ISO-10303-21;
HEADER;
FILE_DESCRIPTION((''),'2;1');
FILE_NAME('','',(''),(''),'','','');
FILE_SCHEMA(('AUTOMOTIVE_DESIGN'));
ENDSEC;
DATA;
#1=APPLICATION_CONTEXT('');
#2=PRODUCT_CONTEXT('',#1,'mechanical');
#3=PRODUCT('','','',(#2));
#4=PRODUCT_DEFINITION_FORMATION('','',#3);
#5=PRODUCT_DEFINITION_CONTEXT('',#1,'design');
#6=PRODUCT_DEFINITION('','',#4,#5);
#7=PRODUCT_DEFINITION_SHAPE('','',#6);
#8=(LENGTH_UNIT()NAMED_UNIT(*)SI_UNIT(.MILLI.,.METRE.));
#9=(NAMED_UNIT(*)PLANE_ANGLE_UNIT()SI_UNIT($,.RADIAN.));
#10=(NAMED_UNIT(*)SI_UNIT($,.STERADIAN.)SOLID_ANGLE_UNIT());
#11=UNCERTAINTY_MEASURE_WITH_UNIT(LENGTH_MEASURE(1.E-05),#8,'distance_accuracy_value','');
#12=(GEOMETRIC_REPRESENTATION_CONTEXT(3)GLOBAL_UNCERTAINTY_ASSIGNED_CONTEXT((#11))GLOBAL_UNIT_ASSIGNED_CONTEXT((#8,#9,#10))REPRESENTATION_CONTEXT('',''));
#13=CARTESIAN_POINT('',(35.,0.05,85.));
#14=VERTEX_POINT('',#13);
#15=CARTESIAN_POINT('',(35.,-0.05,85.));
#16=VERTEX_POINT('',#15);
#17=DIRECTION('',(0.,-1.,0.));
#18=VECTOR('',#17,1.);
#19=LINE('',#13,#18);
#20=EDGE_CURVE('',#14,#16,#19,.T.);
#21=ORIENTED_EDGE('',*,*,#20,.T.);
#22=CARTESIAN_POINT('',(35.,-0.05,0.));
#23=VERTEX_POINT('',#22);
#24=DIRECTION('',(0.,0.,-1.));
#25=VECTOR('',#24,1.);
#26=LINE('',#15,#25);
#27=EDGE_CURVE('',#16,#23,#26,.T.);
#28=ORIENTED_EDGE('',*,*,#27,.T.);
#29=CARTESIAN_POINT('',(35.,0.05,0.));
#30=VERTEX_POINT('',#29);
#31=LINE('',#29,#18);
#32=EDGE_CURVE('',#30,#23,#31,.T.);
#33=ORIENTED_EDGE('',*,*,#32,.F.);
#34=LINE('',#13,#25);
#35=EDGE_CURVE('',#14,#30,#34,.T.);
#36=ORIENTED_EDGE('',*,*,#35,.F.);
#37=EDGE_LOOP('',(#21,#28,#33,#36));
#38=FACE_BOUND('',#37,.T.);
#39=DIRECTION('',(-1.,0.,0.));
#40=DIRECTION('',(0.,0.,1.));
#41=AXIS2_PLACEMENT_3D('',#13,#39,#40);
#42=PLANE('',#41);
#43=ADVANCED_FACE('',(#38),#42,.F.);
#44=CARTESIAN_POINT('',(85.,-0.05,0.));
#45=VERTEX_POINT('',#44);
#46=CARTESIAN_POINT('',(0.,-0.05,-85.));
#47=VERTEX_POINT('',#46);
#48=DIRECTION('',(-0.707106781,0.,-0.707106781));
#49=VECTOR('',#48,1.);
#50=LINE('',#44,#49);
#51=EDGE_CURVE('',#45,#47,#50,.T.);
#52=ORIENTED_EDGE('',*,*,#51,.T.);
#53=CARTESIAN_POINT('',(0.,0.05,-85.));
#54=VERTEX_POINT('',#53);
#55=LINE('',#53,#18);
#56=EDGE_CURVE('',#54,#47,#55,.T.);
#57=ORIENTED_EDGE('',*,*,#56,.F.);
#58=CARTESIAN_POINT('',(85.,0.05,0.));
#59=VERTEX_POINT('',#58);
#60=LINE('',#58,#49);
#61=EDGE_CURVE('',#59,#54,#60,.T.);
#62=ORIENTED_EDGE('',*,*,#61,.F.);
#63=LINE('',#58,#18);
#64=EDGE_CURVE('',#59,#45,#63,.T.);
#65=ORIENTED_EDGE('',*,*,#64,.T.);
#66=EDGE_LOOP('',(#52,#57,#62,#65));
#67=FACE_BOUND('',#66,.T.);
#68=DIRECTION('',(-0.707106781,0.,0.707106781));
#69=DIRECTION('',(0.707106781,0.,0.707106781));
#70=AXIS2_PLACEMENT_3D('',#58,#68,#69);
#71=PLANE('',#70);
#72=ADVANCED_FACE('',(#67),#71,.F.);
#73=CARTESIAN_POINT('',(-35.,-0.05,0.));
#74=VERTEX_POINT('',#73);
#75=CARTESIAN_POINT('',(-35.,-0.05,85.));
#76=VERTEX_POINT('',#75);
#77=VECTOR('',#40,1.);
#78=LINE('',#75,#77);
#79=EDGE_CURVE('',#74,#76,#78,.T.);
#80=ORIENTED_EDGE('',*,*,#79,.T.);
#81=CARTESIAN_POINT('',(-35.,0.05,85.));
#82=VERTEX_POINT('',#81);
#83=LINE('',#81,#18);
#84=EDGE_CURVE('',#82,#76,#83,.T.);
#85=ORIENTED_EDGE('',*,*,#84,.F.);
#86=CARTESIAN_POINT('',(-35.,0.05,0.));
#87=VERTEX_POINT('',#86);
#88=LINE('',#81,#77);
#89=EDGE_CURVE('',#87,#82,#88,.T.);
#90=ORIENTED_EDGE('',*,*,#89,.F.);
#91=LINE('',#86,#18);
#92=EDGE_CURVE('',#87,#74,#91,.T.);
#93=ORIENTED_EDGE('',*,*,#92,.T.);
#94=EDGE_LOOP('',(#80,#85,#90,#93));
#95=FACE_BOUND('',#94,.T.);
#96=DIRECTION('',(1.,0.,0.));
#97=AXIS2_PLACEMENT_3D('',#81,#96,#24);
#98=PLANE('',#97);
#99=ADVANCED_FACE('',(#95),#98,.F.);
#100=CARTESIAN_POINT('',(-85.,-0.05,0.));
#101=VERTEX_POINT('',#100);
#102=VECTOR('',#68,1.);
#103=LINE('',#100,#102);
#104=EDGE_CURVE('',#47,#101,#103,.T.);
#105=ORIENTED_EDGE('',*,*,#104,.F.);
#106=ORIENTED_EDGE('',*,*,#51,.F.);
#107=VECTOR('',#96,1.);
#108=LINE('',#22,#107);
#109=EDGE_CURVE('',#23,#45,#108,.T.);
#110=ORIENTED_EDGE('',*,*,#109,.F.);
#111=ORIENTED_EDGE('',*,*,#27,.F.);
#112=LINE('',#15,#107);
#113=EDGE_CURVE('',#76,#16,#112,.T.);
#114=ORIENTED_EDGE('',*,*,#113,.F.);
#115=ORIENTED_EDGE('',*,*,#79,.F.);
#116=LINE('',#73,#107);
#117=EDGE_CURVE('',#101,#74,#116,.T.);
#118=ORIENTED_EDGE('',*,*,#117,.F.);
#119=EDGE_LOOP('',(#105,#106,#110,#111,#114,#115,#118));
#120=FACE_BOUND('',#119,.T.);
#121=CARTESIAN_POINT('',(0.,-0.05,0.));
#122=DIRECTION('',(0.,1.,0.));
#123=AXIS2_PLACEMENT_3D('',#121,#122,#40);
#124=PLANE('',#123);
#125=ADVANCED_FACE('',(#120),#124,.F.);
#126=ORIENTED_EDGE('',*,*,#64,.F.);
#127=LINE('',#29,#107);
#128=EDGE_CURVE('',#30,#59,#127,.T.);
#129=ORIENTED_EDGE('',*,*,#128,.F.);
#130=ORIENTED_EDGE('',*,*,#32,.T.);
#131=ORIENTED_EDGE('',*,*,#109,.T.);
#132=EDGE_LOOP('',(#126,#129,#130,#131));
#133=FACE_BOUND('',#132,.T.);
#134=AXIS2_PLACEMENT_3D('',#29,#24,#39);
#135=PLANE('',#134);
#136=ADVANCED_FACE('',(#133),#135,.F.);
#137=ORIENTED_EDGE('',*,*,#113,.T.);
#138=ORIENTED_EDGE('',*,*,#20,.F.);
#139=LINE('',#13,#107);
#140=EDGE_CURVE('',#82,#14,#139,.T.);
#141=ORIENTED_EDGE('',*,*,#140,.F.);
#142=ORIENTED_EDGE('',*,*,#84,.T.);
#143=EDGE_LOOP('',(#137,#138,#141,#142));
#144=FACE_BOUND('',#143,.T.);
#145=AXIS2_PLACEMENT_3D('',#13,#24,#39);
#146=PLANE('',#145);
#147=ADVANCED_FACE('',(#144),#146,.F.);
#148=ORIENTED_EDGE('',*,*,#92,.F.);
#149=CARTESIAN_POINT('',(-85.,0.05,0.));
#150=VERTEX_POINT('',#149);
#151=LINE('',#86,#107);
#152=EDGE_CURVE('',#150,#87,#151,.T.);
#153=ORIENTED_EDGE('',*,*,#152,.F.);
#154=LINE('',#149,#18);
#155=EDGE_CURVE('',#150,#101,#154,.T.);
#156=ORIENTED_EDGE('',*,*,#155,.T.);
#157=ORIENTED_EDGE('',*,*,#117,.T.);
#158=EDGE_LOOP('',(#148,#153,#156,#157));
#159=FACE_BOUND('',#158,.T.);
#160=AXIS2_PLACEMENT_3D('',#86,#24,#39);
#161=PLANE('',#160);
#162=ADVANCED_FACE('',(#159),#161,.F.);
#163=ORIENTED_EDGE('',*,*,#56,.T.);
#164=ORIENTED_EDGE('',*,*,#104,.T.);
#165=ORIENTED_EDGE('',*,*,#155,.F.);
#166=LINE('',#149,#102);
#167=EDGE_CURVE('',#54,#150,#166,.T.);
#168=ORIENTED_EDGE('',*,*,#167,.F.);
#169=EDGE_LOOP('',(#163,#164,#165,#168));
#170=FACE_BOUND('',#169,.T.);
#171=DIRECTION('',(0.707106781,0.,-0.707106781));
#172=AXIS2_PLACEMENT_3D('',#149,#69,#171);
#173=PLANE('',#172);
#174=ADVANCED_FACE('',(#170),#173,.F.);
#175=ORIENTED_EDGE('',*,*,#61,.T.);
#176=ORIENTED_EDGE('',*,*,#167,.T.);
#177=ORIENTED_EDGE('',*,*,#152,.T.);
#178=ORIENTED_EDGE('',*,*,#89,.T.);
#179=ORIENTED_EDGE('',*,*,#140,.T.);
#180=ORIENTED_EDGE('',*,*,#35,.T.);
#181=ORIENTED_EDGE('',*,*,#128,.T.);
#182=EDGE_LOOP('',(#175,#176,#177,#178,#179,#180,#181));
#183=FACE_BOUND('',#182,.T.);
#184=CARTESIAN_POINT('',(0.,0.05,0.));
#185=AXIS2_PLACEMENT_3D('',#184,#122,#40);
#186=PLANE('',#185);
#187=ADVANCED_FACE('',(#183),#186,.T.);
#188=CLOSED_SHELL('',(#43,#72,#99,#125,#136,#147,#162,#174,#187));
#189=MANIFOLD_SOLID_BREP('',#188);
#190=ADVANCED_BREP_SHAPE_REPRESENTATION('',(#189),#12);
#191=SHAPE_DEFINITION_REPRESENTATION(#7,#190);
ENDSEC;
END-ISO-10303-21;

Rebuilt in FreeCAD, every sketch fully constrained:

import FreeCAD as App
import Part
import Sketcher

V = App.Vector


def add_polygon(sketch, points):
    """Adds a closed chain of lines whose ends are joined by coincident constraints."""
    first, n = sketch.GeometryCount, len(points)
    for a, b in zip(points, points[1:] + points[:1]):
        sketch.addGeometry(Part.LineSegment(App.Vector(*a, 0), App.Vector(*b, 0)), False)
    for i in range(n):
        sketch.addConstraint(Sketcher.Constraint("Coincident", first + i, 2, first + (i + 1) % n, 1))

doc = App.newDocument("Part")
body = doc.addObject("PartDesign::Body", "Body")

sketch1 = body.newObject("Sketcher::SketchObject", "Sketch")
sketch1.AttachmentSupport = (doc.getObject("XZ_Plane"), [""])
sketch1.MapMode = "FlatFace"
add_polygon(sketch1, [(-35, 85), (35, 85), (35, 0), (85, 0), (0, -85), (-85, 0), (-35, 0)])
sketch1.addConstraint([
    Sketcher.Constraint("Horizontal", 0),
    Sketcher.Constraint("Vertical", 1),
    Sketcher.Constraint("Horizontal", 2),
    Sketcher.Constraint("Horizontal", 5),
    Sketcher.Constraint("Vertical", 6),
    Sketcher.Constraint("Symmetric", 2, 2, 4, 2, -1, 1),
    Sketcher.Constraint("Symmetric", 1, 2, 5, 2, -2),
    Sketcher.Constraint("PointOnObject", 3, 2, -2),
    Sketcher.Constraint("Perpendicular", 3, 4),
    Sketcher.Constraint("DistanceX", 0, 1, 0, 2, 70.0),
    Sketcher.Constraint("DistanceX", 2, 1, 2, 2, 50.0),
    Sketcher.Constraint("DistanceY", 1, 2, 1, 1, 85.0),
])
pad1 = body.newObject("PartDesign::Pad", "Pad")
pad1.Profile = sketch1
pad1.Length = 0.1
pad1.Midplane = True

doc.recompute()
